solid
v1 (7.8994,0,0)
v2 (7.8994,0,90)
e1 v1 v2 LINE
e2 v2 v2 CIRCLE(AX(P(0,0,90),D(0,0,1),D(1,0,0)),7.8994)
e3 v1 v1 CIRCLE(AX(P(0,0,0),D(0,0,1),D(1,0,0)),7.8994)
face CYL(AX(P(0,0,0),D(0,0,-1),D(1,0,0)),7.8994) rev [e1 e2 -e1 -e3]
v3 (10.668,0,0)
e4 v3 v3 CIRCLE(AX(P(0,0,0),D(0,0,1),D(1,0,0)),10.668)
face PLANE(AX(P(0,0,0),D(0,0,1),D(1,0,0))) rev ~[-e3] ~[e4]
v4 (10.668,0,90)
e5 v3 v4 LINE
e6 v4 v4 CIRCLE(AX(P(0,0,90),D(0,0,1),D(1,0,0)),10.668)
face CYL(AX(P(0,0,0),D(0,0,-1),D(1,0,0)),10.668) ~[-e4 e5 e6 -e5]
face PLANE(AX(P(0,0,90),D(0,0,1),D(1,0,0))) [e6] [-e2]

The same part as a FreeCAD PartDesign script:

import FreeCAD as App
import Part
import Sketcher
Q = App.Units.Quantity

doc = App.newDocument("Part")
body = doc.addObject("PartDesign::Body", "Body")

# Sketch on XY plane
sketch1 = body.newObject("Sketcher::SketchObject", "Sketch")
sketch1.AttachmentSupport = (doc.getObject("XY_Plane"), [""])
sketch1.MapMode = "FlatFace"
sketch1.addGeometry([
    Part.Circle(App.Vector(0, 0, 0), App.Vector(0, 0, 1), 11),
    Part.Circle(App.Vector(0, 0, 0), App.Vector(0, 0, 1), 8),
], False)
sketch1.addConstraint([
    Sketcher.Constraint("Coincident", 0, 3, -1, 1),
    Sketcher.Constraint("Coincident", 1, 3, -1, 1),
    Sketcher.Constraint("Diameter", 0, Q("0.84 in")),
    Sketcher.Constraint("Diameter", 1, Q("0.622 in")),
])
pad1 = body.newObject("PartDesign::Pad", "Pad")
pad1.Profile = sketch1
pad1.Length = Q("3.5433071 in")

doc.recompute()
